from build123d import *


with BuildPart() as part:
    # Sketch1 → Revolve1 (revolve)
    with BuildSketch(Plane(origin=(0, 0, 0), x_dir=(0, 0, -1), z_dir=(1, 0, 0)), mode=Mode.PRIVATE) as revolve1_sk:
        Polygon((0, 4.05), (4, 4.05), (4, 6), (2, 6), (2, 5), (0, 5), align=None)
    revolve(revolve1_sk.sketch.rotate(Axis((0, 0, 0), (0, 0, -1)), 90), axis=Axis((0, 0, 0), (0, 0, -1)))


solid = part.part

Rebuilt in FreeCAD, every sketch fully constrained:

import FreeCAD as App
import Part
import Sketcher

V = App.Vector
Q = App.Units.Quantity


def add_polygon(sketch, points):
    """Adds a closed chain of lines whose ends are joined by coincident constraints."""
    first, n = sketch.GeometryCount, len(points)
    for a, b in zip(points, points[1:] + points[:1]):
        sketch.addGeometry(Part.LineSegment(App.Vector(*a, 0), App.Vector(*b, 0)), False)
    for i in range(n):
        sketch.addConstraint(Sketcher.Constraint("Coincident", first + i, 2, first + (i + 1) % n, 1))

doc = App.newDocument("Part")
body = doc.addObject("PartDesign::Body", "Body")

sketch1 = doc.addObject("Sketcher::SketchObject", "Sketch")
body.addObject(sketch1)
sketch1.AttachmentSupport = (doc.YZ_Plane, [""])
sketch1.MapMode = "FlatFace"
add_polygon(sketch1, [(4, 0), (4, -4), (6, -4), (6, -2), (5, -2), (5, 0)])
sketch1.addConstraint(Sketcher.Constraint("Vertical", 0))
sketch1.addConstraint(Sketcher.Constraint("Horizontal", 1))
sketch1.addConstraint(Sketcher.Constraint("Vertical", 2))
sketch1.addConstraint(Sketcher.Constraint("Horizontal", 3))
sketch1.addConstraint(Sketcher.Constraint("Vertical", 4))
sketch1.addConstraint(Sketcher.Constraint("Horizontal", 5))
sketch1.addConstraint(Sketcher.Constraint("PointOnObject", 4, 2, -1))
sketch1.addConstraint(Sketcher.Constraint("Equal", 2, 4))
sketch1.addConstraint(Sketcher.Constraint("DistanceX", 3, 2, 3, 1, Q("1 mm")))
sketch1.addConstraint(Sketcher.Constraint("DistanceY", 0, 2, 0, 1, Q("4 mm")))
sketch1.addConstraint(Sketcher.Constraint("DistanceX", -1, 1, 1, 2, Q("6 mm")))
sketch1.addConstraint(Sketcher.Constraint("DistanceX", 1, 1, 1, 2, Q("1.95 mm")))
revolution = doc.addObject("PartDesign::Revolution", "Revolution")
body.addObject(revolution)
revolution.Profile = sketch1
revolution.ReferenceAxis = (sketch1, ["V_Axis"])
revolution.Angle = 360

doc.recompute()
